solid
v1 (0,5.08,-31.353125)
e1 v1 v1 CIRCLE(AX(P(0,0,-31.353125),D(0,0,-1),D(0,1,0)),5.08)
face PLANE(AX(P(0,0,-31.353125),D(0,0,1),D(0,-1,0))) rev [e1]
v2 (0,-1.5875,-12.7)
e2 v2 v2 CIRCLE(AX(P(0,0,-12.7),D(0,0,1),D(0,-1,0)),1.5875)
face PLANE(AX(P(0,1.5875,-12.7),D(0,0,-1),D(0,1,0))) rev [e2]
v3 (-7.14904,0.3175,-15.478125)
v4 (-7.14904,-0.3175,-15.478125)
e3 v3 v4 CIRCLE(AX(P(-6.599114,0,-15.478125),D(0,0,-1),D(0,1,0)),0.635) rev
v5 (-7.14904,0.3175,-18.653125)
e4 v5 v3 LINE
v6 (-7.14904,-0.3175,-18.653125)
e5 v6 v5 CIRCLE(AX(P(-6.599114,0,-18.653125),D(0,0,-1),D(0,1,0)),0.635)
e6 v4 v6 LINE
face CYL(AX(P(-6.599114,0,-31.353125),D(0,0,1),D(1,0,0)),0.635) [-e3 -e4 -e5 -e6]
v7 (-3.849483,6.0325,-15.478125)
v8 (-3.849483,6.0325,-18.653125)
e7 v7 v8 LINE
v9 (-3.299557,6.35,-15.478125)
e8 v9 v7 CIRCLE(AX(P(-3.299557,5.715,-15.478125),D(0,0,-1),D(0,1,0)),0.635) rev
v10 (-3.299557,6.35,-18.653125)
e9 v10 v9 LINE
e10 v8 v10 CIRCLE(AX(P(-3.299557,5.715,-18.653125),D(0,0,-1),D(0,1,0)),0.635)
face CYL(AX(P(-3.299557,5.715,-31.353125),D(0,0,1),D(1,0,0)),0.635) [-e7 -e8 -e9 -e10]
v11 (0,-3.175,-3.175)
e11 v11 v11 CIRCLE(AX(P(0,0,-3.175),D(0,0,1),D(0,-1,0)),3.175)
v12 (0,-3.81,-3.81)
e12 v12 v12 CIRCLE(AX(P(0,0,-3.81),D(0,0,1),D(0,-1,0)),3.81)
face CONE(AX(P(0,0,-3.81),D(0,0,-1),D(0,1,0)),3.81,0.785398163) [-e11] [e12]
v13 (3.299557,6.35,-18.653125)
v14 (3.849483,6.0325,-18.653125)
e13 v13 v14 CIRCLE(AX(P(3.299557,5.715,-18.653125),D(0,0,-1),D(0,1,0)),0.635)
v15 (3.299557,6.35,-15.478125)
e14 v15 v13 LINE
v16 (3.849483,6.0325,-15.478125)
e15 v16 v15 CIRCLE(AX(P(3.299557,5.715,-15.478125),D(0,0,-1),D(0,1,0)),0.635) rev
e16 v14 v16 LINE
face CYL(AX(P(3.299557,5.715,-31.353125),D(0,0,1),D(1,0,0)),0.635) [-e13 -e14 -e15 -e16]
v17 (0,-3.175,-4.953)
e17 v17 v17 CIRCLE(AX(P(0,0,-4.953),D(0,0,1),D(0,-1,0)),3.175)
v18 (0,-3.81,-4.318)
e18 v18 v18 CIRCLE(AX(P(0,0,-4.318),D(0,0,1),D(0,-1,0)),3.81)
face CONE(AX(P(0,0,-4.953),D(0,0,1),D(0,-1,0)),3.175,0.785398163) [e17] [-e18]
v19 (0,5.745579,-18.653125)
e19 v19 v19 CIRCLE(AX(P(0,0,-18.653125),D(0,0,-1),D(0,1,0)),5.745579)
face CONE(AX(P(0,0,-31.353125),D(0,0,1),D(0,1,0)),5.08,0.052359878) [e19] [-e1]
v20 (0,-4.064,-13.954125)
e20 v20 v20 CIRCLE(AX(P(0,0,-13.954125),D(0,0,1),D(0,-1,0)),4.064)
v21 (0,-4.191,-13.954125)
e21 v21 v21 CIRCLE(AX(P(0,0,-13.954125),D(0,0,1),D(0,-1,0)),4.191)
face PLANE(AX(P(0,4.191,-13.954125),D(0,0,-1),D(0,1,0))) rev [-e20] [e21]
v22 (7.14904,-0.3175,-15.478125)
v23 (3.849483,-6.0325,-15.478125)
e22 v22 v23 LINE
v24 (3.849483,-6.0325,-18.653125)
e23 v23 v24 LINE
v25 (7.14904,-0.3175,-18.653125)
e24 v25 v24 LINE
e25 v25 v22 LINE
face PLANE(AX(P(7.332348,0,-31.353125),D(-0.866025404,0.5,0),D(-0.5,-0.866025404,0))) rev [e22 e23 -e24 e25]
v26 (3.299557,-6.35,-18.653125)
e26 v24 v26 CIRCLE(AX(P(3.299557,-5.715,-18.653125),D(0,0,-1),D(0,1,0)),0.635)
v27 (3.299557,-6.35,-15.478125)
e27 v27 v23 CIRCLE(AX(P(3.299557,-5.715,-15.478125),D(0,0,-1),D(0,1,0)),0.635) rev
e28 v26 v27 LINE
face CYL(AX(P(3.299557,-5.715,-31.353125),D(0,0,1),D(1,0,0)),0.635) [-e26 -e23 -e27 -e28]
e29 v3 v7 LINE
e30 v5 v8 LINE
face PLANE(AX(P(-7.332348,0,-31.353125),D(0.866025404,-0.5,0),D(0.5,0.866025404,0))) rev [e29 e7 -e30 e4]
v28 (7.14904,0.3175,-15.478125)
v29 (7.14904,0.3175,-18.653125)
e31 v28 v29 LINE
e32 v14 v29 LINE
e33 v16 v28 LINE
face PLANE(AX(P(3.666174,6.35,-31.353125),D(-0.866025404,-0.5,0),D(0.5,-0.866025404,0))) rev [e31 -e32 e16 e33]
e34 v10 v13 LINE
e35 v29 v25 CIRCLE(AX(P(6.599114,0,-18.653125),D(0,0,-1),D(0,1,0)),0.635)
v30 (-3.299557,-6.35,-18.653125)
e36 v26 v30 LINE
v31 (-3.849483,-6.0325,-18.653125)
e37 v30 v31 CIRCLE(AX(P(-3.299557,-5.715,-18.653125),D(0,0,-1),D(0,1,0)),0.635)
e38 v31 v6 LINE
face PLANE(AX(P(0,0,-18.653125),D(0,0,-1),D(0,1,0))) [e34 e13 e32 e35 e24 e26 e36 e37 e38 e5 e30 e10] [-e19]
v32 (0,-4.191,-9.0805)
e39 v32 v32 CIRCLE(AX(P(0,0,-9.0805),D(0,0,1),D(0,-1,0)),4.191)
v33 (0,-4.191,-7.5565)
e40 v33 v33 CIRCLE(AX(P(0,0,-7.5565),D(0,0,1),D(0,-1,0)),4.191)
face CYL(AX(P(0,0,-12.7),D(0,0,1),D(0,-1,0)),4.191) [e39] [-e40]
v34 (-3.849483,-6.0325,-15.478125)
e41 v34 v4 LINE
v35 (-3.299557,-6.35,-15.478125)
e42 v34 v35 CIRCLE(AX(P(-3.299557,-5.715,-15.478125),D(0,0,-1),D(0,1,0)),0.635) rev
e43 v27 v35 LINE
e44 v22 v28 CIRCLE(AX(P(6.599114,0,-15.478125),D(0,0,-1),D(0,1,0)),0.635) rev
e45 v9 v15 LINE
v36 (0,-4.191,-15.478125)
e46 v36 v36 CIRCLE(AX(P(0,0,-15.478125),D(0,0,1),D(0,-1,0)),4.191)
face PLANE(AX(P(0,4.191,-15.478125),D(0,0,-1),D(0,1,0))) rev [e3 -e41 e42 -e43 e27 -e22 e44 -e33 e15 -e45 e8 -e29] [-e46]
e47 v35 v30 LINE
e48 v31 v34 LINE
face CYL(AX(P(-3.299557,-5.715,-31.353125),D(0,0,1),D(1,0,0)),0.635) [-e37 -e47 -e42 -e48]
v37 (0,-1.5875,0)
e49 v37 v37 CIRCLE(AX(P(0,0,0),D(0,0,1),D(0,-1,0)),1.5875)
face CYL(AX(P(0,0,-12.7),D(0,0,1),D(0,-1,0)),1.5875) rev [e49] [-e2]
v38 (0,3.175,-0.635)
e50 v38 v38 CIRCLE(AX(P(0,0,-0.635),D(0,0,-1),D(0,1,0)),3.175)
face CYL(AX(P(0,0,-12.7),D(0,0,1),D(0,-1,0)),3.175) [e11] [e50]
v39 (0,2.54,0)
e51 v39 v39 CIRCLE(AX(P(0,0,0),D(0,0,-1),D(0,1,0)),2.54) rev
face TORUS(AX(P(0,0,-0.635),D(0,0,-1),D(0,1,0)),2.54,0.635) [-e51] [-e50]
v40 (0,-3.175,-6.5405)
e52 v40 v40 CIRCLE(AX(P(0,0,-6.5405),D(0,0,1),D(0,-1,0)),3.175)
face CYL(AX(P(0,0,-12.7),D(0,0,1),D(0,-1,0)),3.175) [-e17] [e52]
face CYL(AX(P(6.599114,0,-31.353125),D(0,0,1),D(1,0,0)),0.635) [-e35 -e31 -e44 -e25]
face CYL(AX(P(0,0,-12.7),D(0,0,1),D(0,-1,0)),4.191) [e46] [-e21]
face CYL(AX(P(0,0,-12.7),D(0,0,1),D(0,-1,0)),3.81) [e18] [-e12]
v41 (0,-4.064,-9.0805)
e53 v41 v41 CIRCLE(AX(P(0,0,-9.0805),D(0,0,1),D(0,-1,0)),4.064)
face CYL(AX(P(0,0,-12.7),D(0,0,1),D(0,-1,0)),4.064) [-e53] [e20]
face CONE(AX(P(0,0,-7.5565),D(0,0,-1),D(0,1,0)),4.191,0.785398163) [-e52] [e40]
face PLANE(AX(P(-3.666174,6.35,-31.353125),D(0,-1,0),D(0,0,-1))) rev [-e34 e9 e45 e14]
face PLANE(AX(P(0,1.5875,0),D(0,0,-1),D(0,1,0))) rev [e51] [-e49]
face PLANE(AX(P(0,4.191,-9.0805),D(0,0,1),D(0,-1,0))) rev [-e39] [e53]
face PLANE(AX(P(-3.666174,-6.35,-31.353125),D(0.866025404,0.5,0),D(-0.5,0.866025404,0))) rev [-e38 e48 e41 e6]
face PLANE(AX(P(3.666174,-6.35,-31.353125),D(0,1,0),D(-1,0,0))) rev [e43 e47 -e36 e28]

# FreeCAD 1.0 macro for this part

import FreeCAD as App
import Part
import Sketcher

V = App.Vector
Q = App.Units.Quantity


def edges_at(feature, points):
    """Names of the edges that pass closest to the given points."""
    edges = feature.Shape.Edges
    near = lambda p: min(range(len(edges)), key=lambda i: edges[i].distToShape(Part.Vertex(*p))[0])
    return sorted({f"Edge{near(p) + 1}" for p in points})


def faces_at(feature, points):
    """Names of the faces that lie closest to the given points."""
    faces = feature.Shape.Faces
    near = lambda p: min(range(len(faces)), key=lambda i: faces[i].distToShape(Part.Vertex(*p))[0])
    return sorted({f"Face{near(p) + 1}" for p in points})


def add_polygon(sketch, points):
    """Adds a closed chain of lines whose ends are joined by coincident constraints."""
    first, n = sketch.GeometryCount, len(points)
    for a, b in zip(points, points[1:] + points[:1]):
        sketch.addGeometry(Part.LineSegment(App.Vector(*a, 0), App.Vector(*b, 0)), False)
    for i in range(n):
        sketch.addConstraint(Sketcher.Constraint("Coincident", first + i, 2, first + (i + 1) % n, 1))

doc = App.newDocument("Part")
body = doc.addObject("PartDesign::Body", "Body")

# Sketch on YZ plane
sketch1 = body.newObject("Sketcher::SketchObject", "Sketch")
sketch1.AttachmentSupport = (doc.getObject("YZ_Plane"), [""])
sketch1.MapMode = "FlatFace"
add_polygon(sketch1, [(3.81, -3.81), (3.17, -3.17), (3.17, 0), (1.59, 0), (1.59, -12.7), (0, -12.7), (0, -31.35), (14.37, -31.35), (14.37, -15.48), (4.19, -15.48), (4.19, -13.95), (4.06, -13.95), (4.06, -9.08), (4.19, -9.08), (4.19, -7.56), (3.17, -6.54), (3.17, -4.95), (3.81, -4.32)])  # lines 0-17
sketch1.addConstraint([
    Sketcher.Constraint("Vertical", 1),
    Sketcher.Constraint("Horizontal", 2),
    Sketcher.Constraint("Vertical", 3),
    Sketcher.Constraint("Horizontal", 4),
    Sketcher.Constraint("Vertical", 5),
    Sketcher.Constraint("Horizontal", 6),
    Sketcher.Constraint("Vertical", 7),
    Sketcher.Constraint("Horizontal", 8),
    Sketcher.Constraint("Vertical", 9),
    Sketcher.Constraint("Horizontal", 10),
    Sketcher.Constraint("Vertical", 11),
    Sketcher.Constraint("Horizontal", 12),
    Sketcher.Constraint("Vertical", 13),
    Sketcher.Constraint("Vertical", 15),
    Sketcher.Constraint("Vertical", 17),
    Sketcher.Constraint("PointOnObject", 1, 2, -1),
    Sketcher.Constraint("PointOnObject", 4, 2, -2),
    Sketcher.Constraint("Parallel", 0, 14),
    Sketcher.Constraint("Perpendicular", 14, 16),
    Sketcher.Constraint("Vertical", 9, 2, 12, 2),
    Sketcher.Constraint("Vertical", 1, 2, 14, 2),
    Sketcher.Constraint("Equal", 2, 4),
    Sketcher.Constraint("Equal", 9, 13),
    Sketcher.Constraint("Equal", 4, 15),
    Sketcher.Constraint("Equal", 0, 16),
    Sketcher.Constraint("DistanceY", 3, 2, 3, 1, Q("0.5 in")),
    Sketcher.Constraint("DistanceY", 9, 1, 9, 2, Q("0.06 in")),
    Sketcher.Constraint("DistanceY", 17, 1, 17, 2, Q("0.02 in")),
    Sketcher.Constraint("DistanceY", 11, 2, 14, 2, Q("0.1 in")),
    Sketcher.Constraint("DistanceX", 2, 2, 2, 1, Q("0.0625 in")),
    Sketcher.Constraint("DistanceX", 10, 2, 10, 1, Q("0.005 in")),
    Sketcher.Constraint("DistanceY", 1, 1, 1, 2, Q("0.125 in")),
    Sketcher.Constraint("DistanceY", 5, 2, 5, 1, Q("0.734375 in")),
    Sketcher.Constraint("DistanceY", 7, 1, 7, 2, Q("0.625 in")),
    Sketcher.Constraint("DistanceX", -1, 1, 16, 2, Q("0.15 in")),
    Sketcher.Constraint("DistanceX", 6, 1, 6, 2, 14.365864),
])
revolution = body.newObject("PartDesign::Revolution", "Revolution")
revolution.Profile = sketch1
revolution.ReferenceAxis = (sketch1, ["V_Axis"])
revolution.Angle = 360

# Sketch on XY plane
sketch2 = body.newObject("Sketcher::SketchObject", "Sketch001")
sketch2.AttachmentSupport = (doc.getObject("XY_Plane"), [""])
sketch2.MapMode = "FlatFace"
sketch2.AttachmentOffset = App.Placement(V(0, 0, -0.609375 * 25.4), App.Rotation())
sketch2.addGeometry(Part.Circle(V(0, 0, 0), V(0, 0, 1), 32), False)  # 0
add_polygon(sketch2, [(-4, 6), (-7, 0), (-4, -6), (4, -6), (7, 0), (4, 6)])  # lines 1-6
sketch2.addConstraint([
    Sketcher.Constraint("Horizontal", 3),
    Sketcher.Constraint("Horizontal", 6),
    Sketcher.Constraint("Coincident", 0, 3, -1, 1),
    Sketcher.Constraint("Symmetric", 1, 2, 4, 2, -1, 1),
    Sketcher.Constraint("Symmetric", 2, 2, 5, 2, -1, 1),
    Sketcher.Constraint("PointOnObject", 1, 2, -1),
    Sketcher.Constraint("Parallel", 1, 4),
    Sketcher.Constraint("Vertical", 3, 2, 5, 2),
    Sketcher.Constraint("Angle", 1, Q("-120 deg")),
    Sketcher.Constraint("DistanceY", 3, 2, 5, 2, Q("0.5 in")),
    Sketcher.Constraint("Diameter", 0, 63.465664),
    Sketcher.Constraint("DistanceX", 3, 1, 3, 2, 7.332348),
])
pocket1 = body.newObject("PartDesign::Pocket", "Pocket")
pocket1.Profile = sketch2
pocket1.Type = "ThroughAll"
body2 = doc.addObject("PartDesign::Body", "Body001")

# Sketch on XY plane
sketch3 = body2.newObject("Sketcher::SketchObject", "Sketch002")
sketch3.AttachmentSupport = (doc.getObject("XY_Plane001"), [""])
sketch3.MapMode = "FlatFace"
sketch3.AttachmentOffset = App.Placement(V(0, 0, -1.234375 * 25.4), App.Rotation())
sketch3.addGeometry([
    Part.Circle(V(0, 0, 0), V(0, 0, 1), 11),
    Part.Circle(V(0, 0, 0), V(0, 0, 1), 5),
], False)
sketch3.addConstraint([
    Sketcher.Constraint("Coincident", 0, 3, -1, 1),
    Sketcher.Constraint("Coincident", 1, 3, -1, 1),
    Sketcher.Constraint("Diameter", 1, Q("0.4 in")),
    Sketcher.Constraint("Diameter", 0, 22.240429),
])
pad1 = body2.newObject("PartDesign::Pad", "Pad")
pad1.Profile = sketch3
pad1.Length = Q("0.5 in")
doc.recompute()

datumplane = body2.newObject("PartDesign::Plane", "DatumPlane")
datumplane.AttachmentSupport = (doc.getObject("XY_Plane001"), [""])
datumplane.MapMode = "FlatFace"
datumplane.AttachmentOffset = App.Placement(V(0, 0, -1.234375 * 25.4), App.Rotation())
draft = body2.newObject("PartDesign::Draft", "Draft")
draft.Base = (pad1, faces_at(pad1, [(11.12, 0, -25.003), (5.08, 0, -25.003)]))
draft.NeutralPlane = (datumplane, [""])
draft.Angle = 3
draft.Reversed = False
doc.recompute()

boolean = body.newObject("PartDesign::Boolean", "Boolean")
boolean.Type = "Cut"
boolean.addObjects([body2])
doc.recompute()

fillet = body.newObject("PartDesign::Fillet", "Fillet")
fillet.Base = (boolean, edges_at(boolean, [
    (0, 3.175, 0),
    (-3.666, -6.35, -17.066),
    (3.666, -6.35, -17.066),
    (7.332, 0, -17.066),
    (3.666, 6.35, -17.066),
    (-3.666, 6.35, -17.066),
    (-7.332, 0, -17.066),
]))
fillet.Radius = Q("0.025 in")

doc.recompute()
